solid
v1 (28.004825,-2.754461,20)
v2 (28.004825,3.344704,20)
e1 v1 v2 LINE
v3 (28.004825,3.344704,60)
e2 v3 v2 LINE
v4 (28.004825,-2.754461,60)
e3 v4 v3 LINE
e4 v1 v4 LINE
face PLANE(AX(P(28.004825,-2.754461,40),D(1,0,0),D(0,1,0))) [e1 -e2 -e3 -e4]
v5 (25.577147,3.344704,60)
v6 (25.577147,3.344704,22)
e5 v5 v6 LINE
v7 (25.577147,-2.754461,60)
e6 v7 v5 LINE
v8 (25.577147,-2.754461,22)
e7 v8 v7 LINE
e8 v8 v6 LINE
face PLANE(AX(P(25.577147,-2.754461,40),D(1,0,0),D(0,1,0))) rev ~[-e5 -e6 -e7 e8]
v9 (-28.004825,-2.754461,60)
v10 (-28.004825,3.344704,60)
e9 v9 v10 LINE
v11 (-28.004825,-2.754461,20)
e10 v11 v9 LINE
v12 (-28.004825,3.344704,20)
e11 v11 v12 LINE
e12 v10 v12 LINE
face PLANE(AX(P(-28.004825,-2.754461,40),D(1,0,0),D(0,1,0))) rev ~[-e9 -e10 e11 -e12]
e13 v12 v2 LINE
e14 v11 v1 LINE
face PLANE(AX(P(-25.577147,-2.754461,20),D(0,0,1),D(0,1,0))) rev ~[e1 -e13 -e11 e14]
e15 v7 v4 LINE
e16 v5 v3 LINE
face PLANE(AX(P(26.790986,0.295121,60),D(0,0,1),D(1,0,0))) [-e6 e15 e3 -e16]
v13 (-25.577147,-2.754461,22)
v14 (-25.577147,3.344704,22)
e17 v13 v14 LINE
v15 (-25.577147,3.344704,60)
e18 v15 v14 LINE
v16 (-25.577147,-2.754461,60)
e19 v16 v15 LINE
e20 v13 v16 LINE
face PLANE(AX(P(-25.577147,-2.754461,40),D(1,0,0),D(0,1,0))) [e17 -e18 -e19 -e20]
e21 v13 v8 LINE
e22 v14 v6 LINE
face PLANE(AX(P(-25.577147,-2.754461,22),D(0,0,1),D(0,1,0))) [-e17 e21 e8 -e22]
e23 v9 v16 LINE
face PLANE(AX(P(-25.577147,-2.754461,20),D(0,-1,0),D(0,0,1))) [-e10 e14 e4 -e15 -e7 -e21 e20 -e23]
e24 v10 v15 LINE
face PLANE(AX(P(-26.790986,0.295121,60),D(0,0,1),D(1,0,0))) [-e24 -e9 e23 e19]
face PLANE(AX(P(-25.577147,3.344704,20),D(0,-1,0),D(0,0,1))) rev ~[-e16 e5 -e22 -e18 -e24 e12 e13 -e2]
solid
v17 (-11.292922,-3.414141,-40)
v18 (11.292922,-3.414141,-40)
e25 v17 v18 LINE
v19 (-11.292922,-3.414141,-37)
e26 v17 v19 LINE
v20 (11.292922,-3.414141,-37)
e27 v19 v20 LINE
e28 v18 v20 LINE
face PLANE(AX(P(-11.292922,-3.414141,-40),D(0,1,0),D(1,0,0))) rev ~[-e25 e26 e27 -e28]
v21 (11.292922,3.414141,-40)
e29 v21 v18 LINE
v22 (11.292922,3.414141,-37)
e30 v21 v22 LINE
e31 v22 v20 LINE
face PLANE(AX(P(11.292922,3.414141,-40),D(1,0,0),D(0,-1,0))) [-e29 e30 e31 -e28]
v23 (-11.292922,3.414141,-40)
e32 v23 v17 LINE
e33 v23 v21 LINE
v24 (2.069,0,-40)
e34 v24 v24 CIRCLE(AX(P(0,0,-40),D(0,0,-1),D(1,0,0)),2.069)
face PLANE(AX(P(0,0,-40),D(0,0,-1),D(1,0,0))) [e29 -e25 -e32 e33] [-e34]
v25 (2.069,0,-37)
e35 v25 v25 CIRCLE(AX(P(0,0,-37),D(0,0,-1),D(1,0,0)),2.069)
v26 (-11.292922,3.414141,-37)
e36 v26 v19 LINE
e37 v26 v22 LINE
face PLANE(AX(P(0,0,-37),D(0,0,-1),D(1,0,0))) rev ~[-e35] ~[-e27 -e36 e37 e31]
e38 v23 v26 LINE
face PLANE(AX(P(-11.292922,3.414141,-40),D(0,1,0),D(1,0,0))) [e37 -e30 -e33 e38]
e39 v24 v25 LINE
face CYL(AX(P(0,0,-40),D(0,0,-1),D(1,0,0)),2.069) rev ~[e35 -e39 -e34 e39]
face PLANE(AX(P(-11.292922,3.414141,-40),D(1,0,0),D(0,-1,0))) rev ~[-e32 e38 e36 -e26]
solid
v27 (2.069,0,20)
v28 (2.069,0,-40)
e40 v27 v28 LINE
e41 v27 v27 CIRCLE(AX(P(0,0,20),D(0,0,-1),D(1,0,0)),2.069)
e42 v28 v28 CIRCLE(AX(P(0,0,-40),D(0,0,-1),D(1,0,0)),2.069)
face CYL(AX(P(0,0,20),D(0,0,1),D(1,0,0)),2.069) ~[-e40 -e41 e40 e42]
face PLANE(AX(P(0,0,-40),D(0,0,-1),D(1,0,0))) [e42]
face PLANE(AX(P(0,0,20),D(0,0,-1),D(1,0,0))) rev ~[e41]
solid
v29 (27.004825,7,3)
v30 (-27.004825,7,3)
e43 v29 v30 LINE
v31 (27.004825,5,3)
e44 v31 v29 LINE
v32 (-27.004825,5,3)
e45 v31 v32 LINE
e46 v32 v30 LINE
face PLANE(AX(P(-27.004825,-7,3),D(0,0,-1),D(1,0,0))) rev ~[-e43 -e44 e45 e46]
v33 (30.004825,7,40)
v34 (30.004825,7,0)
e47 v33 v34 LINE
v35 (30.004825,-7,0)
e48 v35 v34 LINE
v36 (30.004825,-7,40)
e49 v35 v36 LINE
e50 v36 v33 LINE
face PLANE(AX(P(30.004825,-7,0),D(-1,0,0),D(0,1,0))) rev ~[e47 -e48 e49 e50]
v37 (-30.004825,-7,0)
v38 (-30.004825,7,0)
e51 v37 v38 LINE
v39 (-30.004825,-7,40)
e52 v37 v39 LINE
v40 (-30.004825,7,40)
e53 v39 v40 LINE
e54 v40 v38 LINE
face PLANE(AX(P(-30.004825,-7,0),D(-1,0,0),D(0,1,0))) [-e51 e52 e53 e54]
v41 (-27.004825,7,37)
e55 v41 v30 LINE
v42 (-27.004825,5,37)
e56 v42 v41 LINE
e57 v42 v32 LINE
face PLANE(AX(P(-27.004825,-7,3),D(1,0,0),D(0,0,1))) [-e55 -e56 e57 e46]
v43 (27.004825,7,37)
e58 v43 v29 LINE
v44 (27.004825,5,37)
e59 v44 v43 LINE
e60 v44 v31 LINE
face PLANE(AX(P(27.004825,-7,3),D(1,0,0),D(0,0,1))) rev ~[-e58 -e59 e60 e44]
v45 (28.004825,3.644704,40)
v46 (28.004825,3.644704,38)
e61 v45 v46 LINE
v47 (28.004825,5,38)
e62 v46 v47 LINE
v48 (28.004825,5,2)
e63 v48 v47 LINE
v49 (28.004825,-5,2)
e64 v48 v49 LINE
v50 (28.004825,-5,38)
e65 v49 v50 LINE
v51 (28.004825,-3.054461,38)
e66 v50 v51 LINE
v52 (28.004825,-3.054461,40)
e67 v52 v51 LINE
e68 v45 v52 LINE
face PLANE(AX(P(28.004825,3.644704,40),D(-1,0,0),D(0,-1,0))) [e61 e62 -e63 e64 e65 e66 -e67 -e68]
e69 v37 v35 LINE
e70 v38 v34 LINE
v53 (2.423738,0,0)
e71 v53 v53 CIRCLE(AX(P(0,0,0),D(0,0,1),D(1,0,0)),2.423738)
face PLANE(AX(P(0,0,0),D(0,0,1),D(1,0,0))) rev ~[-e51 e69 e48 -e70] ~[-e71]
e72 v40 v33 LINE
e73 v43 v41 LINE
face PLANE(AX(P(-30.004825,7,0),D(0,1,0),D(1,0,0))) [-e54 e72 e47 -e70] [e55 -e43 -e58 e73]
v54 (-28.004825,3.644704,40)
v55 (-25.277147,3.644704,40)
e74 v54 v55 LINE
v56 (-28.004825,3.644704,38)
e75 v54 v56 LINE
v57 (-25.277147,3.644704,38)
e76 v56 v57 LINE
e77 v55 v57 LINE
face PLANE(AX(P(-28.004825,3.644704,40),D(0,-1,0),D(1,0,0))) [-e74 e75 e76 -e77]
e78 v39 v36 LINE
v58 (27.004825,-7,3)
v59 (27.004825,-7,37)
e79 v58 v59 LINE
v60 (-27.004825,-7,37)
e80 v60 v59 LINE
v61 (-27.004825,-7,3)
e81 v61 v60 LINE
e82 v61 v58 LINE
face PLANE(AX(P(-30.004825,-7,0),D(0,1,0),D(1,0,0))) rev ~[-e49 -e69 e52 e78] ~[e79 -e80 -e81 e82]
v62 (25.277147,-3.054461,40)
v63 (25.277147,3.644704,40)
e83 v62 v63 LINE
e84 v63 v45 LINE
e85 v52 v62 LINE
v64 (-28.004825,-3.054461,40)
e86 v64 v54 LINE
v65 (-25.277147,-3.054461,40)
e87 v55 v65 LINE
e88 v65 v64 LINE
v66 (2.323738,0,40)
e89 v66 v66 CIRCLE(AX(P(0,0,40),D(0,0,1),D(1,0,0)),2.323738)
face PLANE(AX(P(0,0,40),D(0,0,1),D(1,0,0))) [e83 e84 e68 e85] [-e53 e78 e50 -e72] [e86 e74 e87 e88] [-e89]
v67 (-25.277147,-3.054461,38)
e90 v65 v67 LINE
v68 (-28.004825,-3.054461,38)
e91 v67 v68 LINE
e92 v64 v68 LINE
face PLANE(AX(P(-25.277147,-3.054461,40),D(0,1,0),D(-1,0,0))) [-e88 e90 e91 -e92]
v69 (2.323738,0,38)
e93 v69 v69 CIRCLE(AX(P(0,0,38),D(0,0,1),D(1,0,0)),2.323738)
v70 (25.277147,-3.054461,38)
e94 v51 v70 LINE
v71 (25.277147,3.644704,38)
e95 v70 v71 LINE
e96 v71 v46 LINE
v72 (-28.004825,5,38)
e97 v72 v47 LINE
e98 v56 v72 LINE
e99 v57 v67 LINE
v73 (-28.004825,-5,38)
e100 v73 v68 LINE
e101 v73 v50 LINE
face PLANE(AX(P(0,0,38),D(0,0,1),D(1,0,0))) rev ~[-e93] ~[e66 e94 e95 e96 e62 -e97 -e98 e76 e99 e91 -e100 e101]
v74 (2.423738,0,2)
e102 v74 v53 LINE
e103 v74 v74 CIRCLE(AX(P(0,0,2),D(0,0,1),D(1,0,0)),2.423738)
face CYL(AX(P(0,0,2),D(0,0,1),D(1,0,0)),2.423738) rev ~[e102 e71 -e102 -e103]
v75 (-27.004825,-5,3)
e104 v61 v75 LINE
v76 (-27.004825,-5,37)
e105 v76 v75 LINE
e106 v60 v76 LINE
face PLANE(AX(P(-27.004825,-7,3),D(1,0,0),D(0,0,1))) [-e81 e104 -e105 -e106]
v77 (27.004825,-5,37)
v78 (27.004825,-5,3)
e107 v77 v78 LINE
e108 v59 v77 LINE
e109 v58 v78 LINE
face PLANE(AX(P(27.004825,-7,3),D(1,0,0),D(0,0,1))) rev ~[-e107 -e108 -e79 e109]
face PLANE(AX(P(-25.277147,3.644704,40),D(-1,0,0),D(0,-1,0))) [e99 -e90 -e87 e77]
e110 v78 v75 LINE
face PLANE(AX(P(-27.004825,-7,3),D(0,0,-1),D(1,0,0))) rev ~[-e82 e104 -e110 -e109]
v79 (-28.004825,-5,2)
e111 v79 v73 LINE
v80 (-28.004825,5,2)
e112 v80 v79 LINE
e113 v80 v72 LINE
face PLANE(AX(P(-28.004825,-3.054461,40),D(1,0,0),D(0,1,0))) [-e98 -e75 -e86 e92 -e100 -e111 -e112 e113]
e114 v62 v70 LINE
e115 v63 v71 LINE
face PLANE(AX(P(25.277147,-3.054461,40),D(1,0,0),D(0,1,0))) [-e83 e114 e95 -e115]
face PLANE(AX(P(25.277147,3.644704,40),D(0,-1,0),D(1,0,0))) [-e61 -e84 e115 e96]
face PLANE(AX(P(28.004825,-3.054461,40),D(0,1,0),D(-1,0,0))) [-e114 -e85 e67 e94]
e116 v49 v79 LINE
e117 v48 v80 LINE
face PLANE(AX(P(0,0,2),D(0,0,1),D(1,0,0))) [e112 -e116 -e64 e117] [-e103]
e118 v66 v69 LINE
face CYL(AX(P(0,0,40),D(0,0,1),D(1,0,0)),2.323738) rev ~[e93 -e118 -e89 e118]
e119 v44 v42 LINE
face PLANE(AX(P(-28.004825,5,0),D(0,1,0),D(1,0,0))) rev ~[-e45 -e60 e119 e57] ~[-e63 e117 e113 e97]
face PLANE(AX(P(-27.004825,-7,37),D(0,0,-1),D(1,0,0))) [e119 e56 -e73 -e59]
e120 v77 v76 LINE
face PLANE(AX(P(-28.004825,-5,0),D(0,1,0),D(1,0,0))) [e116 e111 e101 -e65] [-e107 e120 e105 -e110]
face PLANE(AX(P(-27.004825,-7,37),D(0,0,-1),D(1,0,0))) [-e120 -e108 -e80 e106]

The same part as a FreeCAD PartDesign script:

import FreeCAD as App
import Part
import Sketcher
from FreeCAD import Vector


def add_polygon(sketch, points):
    """Adds a closed chain of lines whose ends are joined by coincident constraints."""
    first, n = sketch.GeometryCount, len(points)
    for a, b in zip(points, points[1:] + points[:1]):
        sketch.addGeometry(Part.LineSegment(App.Vector(*a, 0), App.Vector(*b, 0)), False)
    for i in range(n):
        sketch.addConstraint(Sketcher.Constraint("Coincident", first + i, 2, first + (i + 1) % n, 1))

doc = App.newDocument("Part")
body = doc.addObject("PartDesign::Body", "Body")

sketch1 = body.newObject("Sketcher::SketchObject", "Sketch")
sketch1.AttachmentSupport = (doc.getObject("XY_Plane"), [""])
sketch1.MapMode = "FlatFace"
add_polygon(sketch1, [(-30, 7), (-30, -7), (30, -7), (30, 7)])
add_polygon(sketch1, [(9, -2), (-9, -2), (-9, 2), (9, 2)])
sketch1.addConstraint([
    Sketcher.Constraint("Vertical", 0),
    Sketcher.Constraint("Horizontal", 1),
    Sketcher.Constraint("Vertical", 2),
    Sketcher.Constraint("Horizontal", 3),
    Sketcher.Constraint("Horizontal", 4),
    Sketcher.Constraint("Vertical", 5),
    Sketcher.Constraint("Horizontal", 6),
    Sketcher.Constraint("Vertical", 7),
    Sketcher.Constraint("Symmetric", 0, 2, 2, 2, -1, 1),
    Sketcher.Constraint("Symmetric", 4, 2, 6, 2, -1, 1),
    Sketcher.Constraint("DistanceY", 0, 2, 0, 1, 14.0),
    Sketcher.Constraint("DistanceY", 5, 1, 5, 2, 5.0),
    Sketcher.Constraint("DistanceX", 4, 2, 4, 1, 17.125299),
    Sketcher.Constraint("DistanceX", 1, 1, 1, 2, 60.009651),
])
pad1 = body.newObject("PartDesign::Pad", "Pad")
pad1.Profile = sketch1
pad1.Length = 2

sketch2 = body.newObject("Sketcher::SketchObject", "Sketch001")
sketch2.AttachmentSupport = (doc.getObject("XY_Plane"), [""])
sketch2.MapMode = "FlatFace"
add_polygon(sketch2, [(-30, 7), (-30, -7), (30, -7), (30, 7)])
add_polygon(sketch2, [(28, -5), (-28, -5), (-28, 5), (28, 5)])
sketch2.addConstraint([
    Sketcher.Constraint("Vertical", 0),
    Sketcher.Constraint("Horizontal", 1),
    Sketcher.Constraint("Vertical", 2),
    Sketcher.Constraint("Horizontal", 3),
    Sketcher.Constraint("Horizontal", 4),
    Sketcher.Constraint("Vertical", 5),
    Sketcher.Constraint("Horizontal", 6),
    Sketcher.Constraint("Vertical", 7),
    Sketcher.Constraint("Symmetric", 0, 2, 2, 2, -1, 1),
    Sketcher.Constraint("Symmetric", 4, 2, 6, 2, -1, 1),
    Sketcher.Constraint("DistanceY", 0, 2, 0, 1, 14.0),
    Sketcher.Constraint("DistanceY", 5, 1, 5, 2, 10.0),
    Sketcher.Constraint("DistanceX", 0, 2, 4, 2, 2.0),
    Sketcher.Constraint("DistanceX", 1, 1, 1, 2, 60.009651),
])
pad2 = body.newObject("PartDesign::Pad", "Pad001")
pad2.Profile = sketch2
pad2.Length = 40

sketch3 = body.newObject("Sketcher::SketchObject", "Sketch002")
sketch3.AttachmentSupport = (doc.getObject("XZ_Plane"), [""])
sketch3.MapMode = "FlatFace"
sketch3.AttachmentOffset = App.Placement(Vector(0, 0, 7), App.Rotation())
add_polygon(sketch3, [(-27, 37), (-27, 3), (27, 3), (27, 37)])
sketch3.addConstraint([
    Sketcher.Constraint("Vertical", 0),
    Sketcher.Constraint("Horizontal", 1),
    Sketcher.Constraint("Vertical", 2),
    Sketcher.Constraint("Horizontal", 3),
    Sketcher.Constraint("DistanceY", 0, 2, 0, 1, 34.0),
    Sketcher.Constraint("DistanceY", -1, 1, 0, 2, 3.0),
    Sketcher.Constraint("DistanceX", 1, 1, 1, 2, 54.009651),
    Sketcher.Constraint("DistanceX", 0, 2, -1, 1, 27.004825),
])
pocket1 = body.newObject("PartDesign::Pocket", "Pocket")
pocket1.Profile = sketch3
pocket1.Length = 25

sketch4 = body.newObject("Sketcher::SketchObject", "Sketch003")
sketch4.AttachmentSupport = (doc.getObject("XY_Plane"), [""])
sketch4.MapMode = "FlatFace"
sketch4.AttachmentOffset = App.Placement(Vector(0, 0, 2), App.Rotation())
add_polygon(sketch4, [(-11, 4.9), (-11, -4.9), (11, -4.9), (11, 4.9)])
sketch4.addGeometry(Part.Circle(Vector(0, 0, 0), Vector(0, 0, 1), 2.4), False)
sketch4.addConstraint([
    Sketcher.Constraint("Vertical", 0),
    Sketcher.Constraint("Horizontal", 1),
    Sketcher.Constraint("Vertical", 2),
    Sketcher.Constraint("Horizontal", 3),
    Sketcher.Constraint("Coincident", 4, 3, -1, 1),
    Sketcher.Constraint("Symmetric", 0, 2, 2, 2, -1, 1),
    Sketcher.Constraint("Diameter", 4, 4.847476),
    Sketcher.Constraint("DistanceX", 1, 1, 1, 2, 22.008609),
    Sketcher.Constraint("DistanceY", 0, 2, 0, 1, 9.884161),
])
pad3 = body.newObject("PartDesign::Pad", "Pad002")
pad3.Profile = sketch4
pad3.Length = 2
pad3.Reversed = True

sketch5 = body.newObject("Sketcher::SketchObject", "Sketch004")
sketch5.AttachmentSupport = (doc.getObject("XY_Plane"), [""])
sketch5.MapMode = "FlatFace"
sketch5.AttachmentOffset = App.Placement(Vector(0, 0, 40), App.Rotation())
add_polygon(sketch5, [(-30, 7), (-30, -7), (30, -7), (30, 7)])
add_polygon(sketch5, [(-28, -3.1), (-28, 3.6), (-25.3, 3.6), (-25.3, -3.1)])
sketch5.addGeometry(Part.Circle(Vector(0, 0, 0), Vector(0, 0, 1), 2.3), False)
add_polygon(sketch5, [(28, 3.6), (28, -3.1), (25.3, -3.1), (25.3, 3.6)])
sketch5.addConstraint([
    Sketcher.Constraint("Vertical", 0),
    Sketcher.Constraint("Horizontal", 1),
    Sketcher.Constraint("Vertical", 2),
    Sketcher.Constraint("Horizontal", 3),
    Sketcher.Constraint("Vertical", 4),
    Sketcher.Constraint("Horizontal", 5),
    Sketcher.Constraint("Vertical", 6),
    Sketcher.Constraint("Horizontal", 7),
    Sketcher.Constraint("Vertical", 9),
    Sketcher.Constraint("Horizontal", 10),
    Sketcher.Constraint("Vertical", 11),
    Sketcher.Constraint("Horizontal", 12),
    Sketcher.Constraint("Coincident", 8, 3, -1, 1),
    Sketcher.Constraint("Symmetric", 0, 2, 2, 2, -1, 1),
    Sketcher.Constraint("Symmetric", 7, 2, 9, 2, -2),
    Sketcher.Constraint("Symmetric", 5, 2, 11, 2, -2),
    Sketcher.Constraint("DistanceY", 0, 2, 0, 1, 14.0),
    Sketcher.Constraint("DistanceX", 3, 2, 4, 2, 2.0),
    Sketcher.Constraint("Diameter", 8, 4.647476),
    Sketcher.Constraint("DistanceX", 1, 1, 1, 2, 60.009651),
    Sketcher.Constraint("DistanceX", 5, 1, 5, 2, 2.727679),
    Sketcher.Constraint("DistanceY", 4, 1, 4, 2, 6.699166),
    Sketcher.Constraint("DistanceY", 6, 2, -1, 1, 3.054461),
])
pad4 = body.newObject("PartDesign::Pad", "Pad003")
pad4.Profile = sketch5
pad4.Length = 2
pad4.Reversed = True
body2 = doc.addObject("PartDesign::Body", "Body001")

sketch6 = body2.newObject("Sketcher::SketchObject", "Sketch005")
sketch6.AttachmentSupport = (doc.getObject("XY_Plane001"), [""])
sketch6.MapMode = "FlatFace"
sketch6.AttachmentOffset = App.Placement(Vector(0, 0, 40), App.Rotation())
add_polygon(sketch6, [(25.6, 3.3), (25.6, -2.8), (28, -2.8), (28, 3.3)])
sketch6.addConstraint([
    Sketcher.Constraint("Vertical", 0),
    Sketcher.Constraint("Horizontal", 1),
    Sketcher.Constraint("Vertical", 2),
    Sketcher.Constraint("Horizontal", 3),
    Sketcher.Constraint("DistanceX", 1, 1, 1, 2, 2.427679),
    Sketcher.Constraint("DistanceY", 0, 2, 0, 1, 6.099166),
    Sketcher.Constraint("DistanceY", 0, 2, -1, 1, 2.754461),
    Sketcher.Constraint("DistanceX", -1, 1, 0, 2, 25.577147),
])
pad5 = body2.newObject("PartDesign::Pad", "Pad004")
pad5.Profile = sketch6
pad5.Length = 40
pad5.Midplane = True
body3 = doc.addObject("PartDesign::Body", "Body002")

sketch7 = body3.newObject("Sketcher::SketchObject", "Sketch006")
sketch7.AttachmentSupport = (doc.getObject("XY_Plane002"), [""])
sketch7.MapMode = "FlatFace"
sketch7.AttachmentOffset = App.Placement(Vector(0, 0, 40), App.Rotation())
add_polygon(sketch7, [(-28, 3.3), (-28, -2.8), (-25.6, -2.8), (-25.6, 3.3)])
sketch7.addConstraint([
    Sketcher.Constraint("Vertical", 0),
    Sketcher.Constraint("Horizontal", 1),
    Sketcher.Constraint("Vertical", 2),
    Sketcher.Constraint("Horizontal", 3),
    Sketcher.Constraint("DistanceX", 1, 1, 1, 2, 2.427679),
    Sketcher.Constraint("DistanceY", 0, 2, 0, 1, 6.099166),
    Sketcher.Constraint("DistanceY", 0, 2, -1, 1, 2.754461),
    Sketcher.Constraint("DistanceX", 0, 2, -1, 1, 28.004825),
])
pad6 = body3.newObject("PartDesign::Pad", "Pad005")
pad6.Profile = sketch7
pad6.Length = 40
pad6.Midplane = True
body2.AllowCompound = True
doc.recompute()

boolean = body2.newObject("PartDesign::Boolean", "Boolean")
boolean.Type = "Fuse"
boolean.addObjects([body3])

sketch8 = body2.newObject("Sketcher::SketchObject", "Sketch007")
sketch8.AttachmentSupport = (doc.getObject("YZ_Plane001"), [""])
sketch8.MapMode = "FlatFace"
sketch8.AttachmentOffset = App.Placement(Vector(0, 0, -25.577147), App.Rotation())
add_polygon(sketch8, [(-2.8, 22), (-2.8, 20), (3.3, 20), (3.3, 22)])
sketch8.addConstraint([
    Sketcher.Constraint("Vertical", 0),
    Sketcher.Constraint("Horizontal", 1),
    Sketcher.Constraint("Vertical", 2),
    Sketcher.Constraint("Horizontal", 3),
    Sketcher.Constraint("DistanceY", 0, 2, 0, 1, 2.0),
    Sketcher.Constraint("DistanceY", -1, 1, 0, 2, 20.0),
    Sketcher.Constraint("DistanceX", 1, 1, 1, 2, 6.099166),
    Sketcher.Constraint("DistanceX", 0, 2, -1, 1, 2.754461),
])
pad7 = body2.newObject("PartDesign::Pad", "Pad006")
pad7.Profile = sketch8
pad7.Type = "UpToLast"
body4 = doc.addObject("PartDesign::Body", "Body003")

sketch9 = body4.newObject("Sketcher::SketchObject", "Sketch008")
sketch9.AttachmentSupport = (doc.getObject("XY_Plane003"), [""])
sketch9.MapMode = "FlatFace"
sketch9.AttachmentOffset = App.Placement(Vector(0, 0, 20), App.Rotation())
sketch9.addGeometry(Part.Circle(Vector(0, 0, 0), Vector(0, 0, 1), 2.1), False)
sketch9.addConstraint([
    Sketcher.Constraint("Coincident", 0, 3, -1, 1),
    Sketcher.Constraint("Diameter", 0, 4.138),
])
pad8 = body4.newObject("PartDesign::Pad", "Pad007")
pad8.Profile = sketch9
pad8.Length = 60
pad8.Reversed = True
body5 = doc.addObject("PartDesign::Body", "Body004")

sketch10 = body5.newObject("Sketcher::SketchObject", "Sketch009")
sketch10.AttachmentSupport = (doc.getObject("XY_Plane004"), [""])
sketch10.MapMode = "FlatFace"
sketch10.AttachmentOffset = App.Placement(Vector(0, 0, -40), App.Rotation())
add_polygon(sketch10, [(-11.3, -3.4), (-11.3, 3.4), (11.3, 3.4), (11.3, -3.4)])
sketch10.addGeometry(Part.Circle(Vector(0, 0, 0), Vector(0, 0, 1), 2.1), False)
sketch10.addConstraint([
    Sketcher.Constraint("Vertical", 0),
    Sketcher.Constraint("Horizontal", 1),
    Sketcher.Constraint("Vertical", 2),
    Sketcher.Constraint("Horizontal", 3),
    Sketcher.Constraint("Coincident", 4, 3, -1, 1),
    Sketcher.Constraint("Symmetric", 0, 2, 2, 2, -1, 1),
    Sketcher.Constraint("Diameter", 4, 4.138),
    Sketcher.Constraint("DistanceY", 0, 1, 0, 2, 6.828282),
    Sketcher.Constraint("DistanceX", 1, 1, 1, 2, 22.585845),
])
pad9 = body5.newObject("PartDesign::Pad", "Pad008")
pad9.Profile = sketch10
pad9.Length = 3

doc.recompute()
